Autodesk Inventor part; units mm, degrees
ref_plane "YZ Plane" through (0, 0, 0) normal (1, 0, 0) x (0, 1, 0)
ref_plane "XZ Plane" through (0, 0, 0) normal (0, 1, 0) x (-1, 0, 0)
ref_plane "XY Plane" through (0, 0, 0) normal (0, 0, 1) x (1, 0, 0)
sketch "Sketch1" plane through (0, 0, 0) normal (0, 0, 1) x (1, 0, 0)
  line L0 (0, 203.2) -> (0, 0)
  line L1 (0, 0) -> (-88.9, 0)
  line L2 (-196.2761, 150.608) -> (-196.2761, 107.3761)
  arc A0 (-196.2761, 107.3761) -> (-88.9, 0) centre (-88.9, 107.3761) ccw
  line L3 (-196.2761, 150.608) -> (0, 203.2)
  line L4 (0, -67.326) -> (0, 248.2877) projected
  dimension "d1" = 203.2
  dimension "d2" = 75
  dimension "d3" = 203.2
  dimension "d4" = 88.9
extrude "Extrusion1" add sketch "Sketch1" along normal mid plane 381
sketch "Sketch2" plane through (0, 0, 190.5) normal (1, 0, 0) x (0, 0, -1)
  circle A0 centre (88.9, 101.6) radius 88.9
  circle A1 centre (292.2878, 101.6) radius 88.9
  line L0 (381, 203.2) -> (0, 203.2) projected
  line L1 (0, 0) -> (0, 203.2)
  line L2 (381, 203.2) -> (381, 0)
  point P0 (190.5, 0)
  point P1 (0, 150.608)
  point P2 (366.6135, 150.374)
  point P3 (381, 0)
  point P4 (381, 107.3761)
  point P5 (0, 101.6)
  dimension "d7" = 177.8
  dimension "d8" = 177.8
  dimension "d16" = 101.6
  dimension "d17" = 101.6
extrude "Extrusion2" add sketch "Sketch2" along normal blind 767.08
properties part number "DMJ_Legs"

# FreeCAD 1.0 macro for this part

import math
import FreeCAD as App
import Part
import Sketcher

V = App.Vector
Q = App.Units.Quantity

doc = App.newDocument("Part")
body = doc.addObject("PartDesign::Body", "Body")

# Sketch on XY plane
sketch1 = body.newObject("Sketcher::SketchObject", "Sketch")
sketch1.AttachmentSupport = (doc.getObject("XY_Plane"), [""])
sketch1.MapMode = "FlatFace"
sketch1.addGeometry(Part.LineSegment(V(0, 0, 0), V(0, 203, 0)), False)
sketch1.addGeometry(Part.LineSegment(V(0, 203, 0), V(-196, 151, 0)), False)
sketch1.addGeometry(Part.LineSegment(V(-196, 151, 0), V(-196, 107, 0)), False)
sketch1.addGeometry(Part.ArcOfCircle(Part.Circle(V(-89, 107, 0), V(0, 0, 1), 107), math.radians(180), math.radians(270)), False)
sketch1.addGeometry(Part.LineSegment(V(-89, 0, 0), V(0, 0, 0)), False)
sketch1.addConstraint(Sketcher.Constraint("Coincident", 0, 2, 1, 1))
sketch1.addConstraint(Sketcher.Constraint("Coincident", 1, 2, 2, 1))
sketch1.addConstraint(Sketcher.Constraint("Tangent", 2, 2, 3, 1))
sketch1.addConstraint(Sketcher.Constraint("Tangent", 3, 2, 4, 1))
sketch1.addConstraint(Sketcher.Constraint("Coincident", 4, 2, 0, 1))
sketch1.addConstraint(Sketcher.Constraint("Vertical", 0))
sketch1.addConstraint(Sketcher.Constraint("Vertical", 2))
sketch1.addConstraint(Sketcher.Constraint("Horizontal", 4))
sketch1.addConstraint(Sketcher.Constraint("Coincident", 4, 2, -1, 1))
sketch1.addConstraint(Sketcher.Constraint("DistanceY", 0, 1, 0, 2, Q("8 in")))
sketch1.addConstraint(Sketcher.Constraint("Distance", 1, Q("8 in")))
sketch1.addConstraint(Sketcher.Constraint("DistanceX", 4, 1, 4, 2, Q("3.5 in")))
sketch1.addConstraint(Sketcher.Constraint("Angle", 1, Q("-165 deg")))
pad1 = body.newObject("PartDesign::Pad", "Pad")
pad1.Profile = sketch1
pad1.Length = Q("15 in")
pad1.Midplane = True

# Sketch on YZ plane
sketch2 = body.newObject("Sketcher::SketchObject", "Sketch001")
sketch2.AttachmentSupport = (doc.getObject("YZ_Plane"), [""])
sketch2.MapMode = "FlatFace"
sketch2.addGeometry(Part.Circle(V(102, 102, 0), V(0, 0, 1), 89), False)
sketch2.addGeometry(Part.Circle(V(102, -102, 0), V(0, 0, 1), 89), False)
sketch2.addConstraint(Sketcher.Constraint("Equal", 0, 1))
sketch2.addConstraint(Sketcher.Constraint("Vertical", 0, 3, 1, 3))
sketch2.addConstraint(Sketcher.Constraint("Diameter", 0, Q("7 in")))
sketch2.addConstraint(Sketcher.Constraint("DistanceX", -1, 1, 0, 3, Q("4 in")))
sketch2.addConstraint(Sketcher.Constraint("DistanceY", -1, 1, 0, 3, Q("4 in")))
sketch2.addConstraint(Sketcher.Constraint("DistanceY", 1, 3, -1, 1, Q("4.0074 in")))
pad2 = body.newObject("PartDesign::Pad", "Pad001")
pad2.Profile = sketch2
pad2.Length = Q("30.2 in")

doc.recompute()
